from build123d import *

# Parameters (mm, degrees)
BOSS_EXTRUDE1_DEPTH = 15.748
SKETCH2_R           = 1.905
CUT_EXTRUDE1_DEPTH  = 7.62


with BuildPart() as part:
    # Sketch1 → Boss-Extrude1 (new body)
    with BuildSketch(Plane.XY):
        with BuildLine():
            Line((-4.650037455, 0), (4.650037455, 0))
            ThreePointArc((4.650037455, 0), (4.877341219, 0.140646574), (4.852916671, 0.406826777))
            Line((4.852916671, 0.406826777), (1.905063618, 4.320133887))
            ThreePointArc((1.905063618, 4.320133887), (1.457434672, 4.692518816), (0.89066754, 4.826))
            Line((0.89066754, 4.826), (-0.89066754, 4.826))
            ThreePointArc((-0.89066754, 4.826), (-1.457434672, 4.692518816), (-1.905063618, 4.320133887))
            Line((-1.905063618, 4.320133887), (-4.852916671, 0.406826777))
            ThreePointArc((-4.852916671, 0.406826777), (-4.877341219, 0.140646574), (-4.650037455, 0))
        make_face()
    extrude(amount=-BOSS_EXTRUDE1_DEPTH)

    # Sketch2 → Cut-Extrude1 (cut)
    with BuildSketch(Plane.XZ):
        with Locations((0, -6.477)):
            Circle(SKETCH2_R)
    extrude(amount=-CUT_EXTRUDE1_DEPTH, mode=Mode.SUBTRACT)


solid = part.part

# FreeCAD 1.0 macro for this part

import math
import FreeCAD as App
import Part
import Sketcher

V = App.Vector
Q = App.Units.Quantity

doc = App.newDocument("Part")
body = doc.addObject("PartDesign::Body", "Body")

# Sketch on XY plane
sketch1 = doc.addObject("Sketcher::SketchObject", "Sketch")
body.addObject(sketch1)
sketch1.AttachmentSupport = (doc.XY_Plane, [""])
sketch1.MapMode = "FlatFace"
sketch1.addGeometry([
    Part.LineSegment(V(-4.65, 0, 0), V(4.65, 0, 0)),  # 0
    Part.ArcOfCircle(Part.Circle(V(4.65, 0.25, 0), V(0, 0, 1), 0.25), math.radians(-90), math.radians(37)),  # 1
    Part.LineSegment(V(4.85, 0.41, 0), V(1.91, 4.32, 0)),  # 2
    Part.ArcOfCircle(Part.Circle(V(0.89, 3.56, 0), V(0, 0, 1), 1.27), math.radians(37), math.radians(90)),  # 3
    Part.LineSegment(V(0.89, 4.83, 0), V(-0.89, 4.83, 0)),  # 4
    Part.ArcOfCircle(Part.Circle(V(-0.89, 3.56, 0), V(0, 0, 1), 1.27), math.radians(90), math.radians(143)),  # 5
    Part.LineSegment(V(-1.91, 4.32, 0), V(-4.85, 0.41, 0)),  # 6
    Part.ArcOfCircle(Part.Circle(V(-4.65, 0.25, 0), V(0, 0, 1), 0.25), math.radians(143), math.radians(270)),  # 7
], False)
sketch1.addConstraint([
    Sketcher.Constraint("Tangent", 0, 2, 1, 1),
    Sketcher.Constraint("Tangent", 1, 2, 2, 1),
    Sketcher.Constraint("Tangent", 2, 2, 3, 1),
    Sketcher.Constraint("Tangent", 3, 2, 4, 1),
    Sketcher.Constraint("Tangent", 4, 2, 5, 1),
    Sketcher.Constraint("Tangent", 5, 2, 6, 1),
    Sketcher.Constraint("Tangent", 6, 2, 7, 1),
    Sketcher.Constraint("Tangent", 7, 2, 0, 1),
    Sketcher.Constraint("Horizontal", 0),
    Sketcher.Constraint("Horizontal", 4),
    Sketcher.Constraint("Equal", 3, 5),
    Sketcher.Constraint("Equal", 1, 7),
    Sketcher.Constraint("Symmetric", 0, 2, 7, 2, -1, 1),
    Sketcher.Constraint("Horizontal", 2, 2, 5, 2),
    Sketcher.Constraint("Radius", 1, Q("0.01 in")),
    Sketcher.Constraint("Radius", 3, Q("0.05 in")),
    Sketcher.Constraint("DistanceY", -1, 1, 3, 3, Q("0.14 in")),
    Sketcher.Constraint("Distance", 2, 4.899368),
    Sketcher.Constraint("DistanceX", 0, 1, 0, 2, 9.300075),
])
pad1 = doc.addObject("PartDesign::Pad", "Pad")
body.addObject(pad1)
pad1.Profile = sketch1
pad1.Length = Q("0.62 in")
pad1.Reversed = True

# Sketch on XZ plane
sketch2 = doc.addObject("Sketcher::SketchObject", "Sketch001")
body.addObject(sketch2)
sketch2.AttachmentSupport = (doc.XZ_Plane, [""])
sketch2.MapMode = "FlatFace"
sketch2.addGeometry(Part.Circle(V(0, -6.5, 0), V(0, 0, 1), 1.9), False)
sketch2.addConstraint([
    Sketcher.Constraint("PointOnObject", 0, 3, -2),
    Sketcher.Constraint("Diameter", 0, Q("0.15 in")),
    Sketcher.Constraint("DistanceY", 0, 3, -1, 1, Q("0.255 in")),
])
pocket1 = doc.addObject("PartDesign::Pocket", "Pocket")
body.addObject(pocket1)
pocket1.Profile = sketch2
pocket1.Length = Q("0.3 in")

doc.recompute()
